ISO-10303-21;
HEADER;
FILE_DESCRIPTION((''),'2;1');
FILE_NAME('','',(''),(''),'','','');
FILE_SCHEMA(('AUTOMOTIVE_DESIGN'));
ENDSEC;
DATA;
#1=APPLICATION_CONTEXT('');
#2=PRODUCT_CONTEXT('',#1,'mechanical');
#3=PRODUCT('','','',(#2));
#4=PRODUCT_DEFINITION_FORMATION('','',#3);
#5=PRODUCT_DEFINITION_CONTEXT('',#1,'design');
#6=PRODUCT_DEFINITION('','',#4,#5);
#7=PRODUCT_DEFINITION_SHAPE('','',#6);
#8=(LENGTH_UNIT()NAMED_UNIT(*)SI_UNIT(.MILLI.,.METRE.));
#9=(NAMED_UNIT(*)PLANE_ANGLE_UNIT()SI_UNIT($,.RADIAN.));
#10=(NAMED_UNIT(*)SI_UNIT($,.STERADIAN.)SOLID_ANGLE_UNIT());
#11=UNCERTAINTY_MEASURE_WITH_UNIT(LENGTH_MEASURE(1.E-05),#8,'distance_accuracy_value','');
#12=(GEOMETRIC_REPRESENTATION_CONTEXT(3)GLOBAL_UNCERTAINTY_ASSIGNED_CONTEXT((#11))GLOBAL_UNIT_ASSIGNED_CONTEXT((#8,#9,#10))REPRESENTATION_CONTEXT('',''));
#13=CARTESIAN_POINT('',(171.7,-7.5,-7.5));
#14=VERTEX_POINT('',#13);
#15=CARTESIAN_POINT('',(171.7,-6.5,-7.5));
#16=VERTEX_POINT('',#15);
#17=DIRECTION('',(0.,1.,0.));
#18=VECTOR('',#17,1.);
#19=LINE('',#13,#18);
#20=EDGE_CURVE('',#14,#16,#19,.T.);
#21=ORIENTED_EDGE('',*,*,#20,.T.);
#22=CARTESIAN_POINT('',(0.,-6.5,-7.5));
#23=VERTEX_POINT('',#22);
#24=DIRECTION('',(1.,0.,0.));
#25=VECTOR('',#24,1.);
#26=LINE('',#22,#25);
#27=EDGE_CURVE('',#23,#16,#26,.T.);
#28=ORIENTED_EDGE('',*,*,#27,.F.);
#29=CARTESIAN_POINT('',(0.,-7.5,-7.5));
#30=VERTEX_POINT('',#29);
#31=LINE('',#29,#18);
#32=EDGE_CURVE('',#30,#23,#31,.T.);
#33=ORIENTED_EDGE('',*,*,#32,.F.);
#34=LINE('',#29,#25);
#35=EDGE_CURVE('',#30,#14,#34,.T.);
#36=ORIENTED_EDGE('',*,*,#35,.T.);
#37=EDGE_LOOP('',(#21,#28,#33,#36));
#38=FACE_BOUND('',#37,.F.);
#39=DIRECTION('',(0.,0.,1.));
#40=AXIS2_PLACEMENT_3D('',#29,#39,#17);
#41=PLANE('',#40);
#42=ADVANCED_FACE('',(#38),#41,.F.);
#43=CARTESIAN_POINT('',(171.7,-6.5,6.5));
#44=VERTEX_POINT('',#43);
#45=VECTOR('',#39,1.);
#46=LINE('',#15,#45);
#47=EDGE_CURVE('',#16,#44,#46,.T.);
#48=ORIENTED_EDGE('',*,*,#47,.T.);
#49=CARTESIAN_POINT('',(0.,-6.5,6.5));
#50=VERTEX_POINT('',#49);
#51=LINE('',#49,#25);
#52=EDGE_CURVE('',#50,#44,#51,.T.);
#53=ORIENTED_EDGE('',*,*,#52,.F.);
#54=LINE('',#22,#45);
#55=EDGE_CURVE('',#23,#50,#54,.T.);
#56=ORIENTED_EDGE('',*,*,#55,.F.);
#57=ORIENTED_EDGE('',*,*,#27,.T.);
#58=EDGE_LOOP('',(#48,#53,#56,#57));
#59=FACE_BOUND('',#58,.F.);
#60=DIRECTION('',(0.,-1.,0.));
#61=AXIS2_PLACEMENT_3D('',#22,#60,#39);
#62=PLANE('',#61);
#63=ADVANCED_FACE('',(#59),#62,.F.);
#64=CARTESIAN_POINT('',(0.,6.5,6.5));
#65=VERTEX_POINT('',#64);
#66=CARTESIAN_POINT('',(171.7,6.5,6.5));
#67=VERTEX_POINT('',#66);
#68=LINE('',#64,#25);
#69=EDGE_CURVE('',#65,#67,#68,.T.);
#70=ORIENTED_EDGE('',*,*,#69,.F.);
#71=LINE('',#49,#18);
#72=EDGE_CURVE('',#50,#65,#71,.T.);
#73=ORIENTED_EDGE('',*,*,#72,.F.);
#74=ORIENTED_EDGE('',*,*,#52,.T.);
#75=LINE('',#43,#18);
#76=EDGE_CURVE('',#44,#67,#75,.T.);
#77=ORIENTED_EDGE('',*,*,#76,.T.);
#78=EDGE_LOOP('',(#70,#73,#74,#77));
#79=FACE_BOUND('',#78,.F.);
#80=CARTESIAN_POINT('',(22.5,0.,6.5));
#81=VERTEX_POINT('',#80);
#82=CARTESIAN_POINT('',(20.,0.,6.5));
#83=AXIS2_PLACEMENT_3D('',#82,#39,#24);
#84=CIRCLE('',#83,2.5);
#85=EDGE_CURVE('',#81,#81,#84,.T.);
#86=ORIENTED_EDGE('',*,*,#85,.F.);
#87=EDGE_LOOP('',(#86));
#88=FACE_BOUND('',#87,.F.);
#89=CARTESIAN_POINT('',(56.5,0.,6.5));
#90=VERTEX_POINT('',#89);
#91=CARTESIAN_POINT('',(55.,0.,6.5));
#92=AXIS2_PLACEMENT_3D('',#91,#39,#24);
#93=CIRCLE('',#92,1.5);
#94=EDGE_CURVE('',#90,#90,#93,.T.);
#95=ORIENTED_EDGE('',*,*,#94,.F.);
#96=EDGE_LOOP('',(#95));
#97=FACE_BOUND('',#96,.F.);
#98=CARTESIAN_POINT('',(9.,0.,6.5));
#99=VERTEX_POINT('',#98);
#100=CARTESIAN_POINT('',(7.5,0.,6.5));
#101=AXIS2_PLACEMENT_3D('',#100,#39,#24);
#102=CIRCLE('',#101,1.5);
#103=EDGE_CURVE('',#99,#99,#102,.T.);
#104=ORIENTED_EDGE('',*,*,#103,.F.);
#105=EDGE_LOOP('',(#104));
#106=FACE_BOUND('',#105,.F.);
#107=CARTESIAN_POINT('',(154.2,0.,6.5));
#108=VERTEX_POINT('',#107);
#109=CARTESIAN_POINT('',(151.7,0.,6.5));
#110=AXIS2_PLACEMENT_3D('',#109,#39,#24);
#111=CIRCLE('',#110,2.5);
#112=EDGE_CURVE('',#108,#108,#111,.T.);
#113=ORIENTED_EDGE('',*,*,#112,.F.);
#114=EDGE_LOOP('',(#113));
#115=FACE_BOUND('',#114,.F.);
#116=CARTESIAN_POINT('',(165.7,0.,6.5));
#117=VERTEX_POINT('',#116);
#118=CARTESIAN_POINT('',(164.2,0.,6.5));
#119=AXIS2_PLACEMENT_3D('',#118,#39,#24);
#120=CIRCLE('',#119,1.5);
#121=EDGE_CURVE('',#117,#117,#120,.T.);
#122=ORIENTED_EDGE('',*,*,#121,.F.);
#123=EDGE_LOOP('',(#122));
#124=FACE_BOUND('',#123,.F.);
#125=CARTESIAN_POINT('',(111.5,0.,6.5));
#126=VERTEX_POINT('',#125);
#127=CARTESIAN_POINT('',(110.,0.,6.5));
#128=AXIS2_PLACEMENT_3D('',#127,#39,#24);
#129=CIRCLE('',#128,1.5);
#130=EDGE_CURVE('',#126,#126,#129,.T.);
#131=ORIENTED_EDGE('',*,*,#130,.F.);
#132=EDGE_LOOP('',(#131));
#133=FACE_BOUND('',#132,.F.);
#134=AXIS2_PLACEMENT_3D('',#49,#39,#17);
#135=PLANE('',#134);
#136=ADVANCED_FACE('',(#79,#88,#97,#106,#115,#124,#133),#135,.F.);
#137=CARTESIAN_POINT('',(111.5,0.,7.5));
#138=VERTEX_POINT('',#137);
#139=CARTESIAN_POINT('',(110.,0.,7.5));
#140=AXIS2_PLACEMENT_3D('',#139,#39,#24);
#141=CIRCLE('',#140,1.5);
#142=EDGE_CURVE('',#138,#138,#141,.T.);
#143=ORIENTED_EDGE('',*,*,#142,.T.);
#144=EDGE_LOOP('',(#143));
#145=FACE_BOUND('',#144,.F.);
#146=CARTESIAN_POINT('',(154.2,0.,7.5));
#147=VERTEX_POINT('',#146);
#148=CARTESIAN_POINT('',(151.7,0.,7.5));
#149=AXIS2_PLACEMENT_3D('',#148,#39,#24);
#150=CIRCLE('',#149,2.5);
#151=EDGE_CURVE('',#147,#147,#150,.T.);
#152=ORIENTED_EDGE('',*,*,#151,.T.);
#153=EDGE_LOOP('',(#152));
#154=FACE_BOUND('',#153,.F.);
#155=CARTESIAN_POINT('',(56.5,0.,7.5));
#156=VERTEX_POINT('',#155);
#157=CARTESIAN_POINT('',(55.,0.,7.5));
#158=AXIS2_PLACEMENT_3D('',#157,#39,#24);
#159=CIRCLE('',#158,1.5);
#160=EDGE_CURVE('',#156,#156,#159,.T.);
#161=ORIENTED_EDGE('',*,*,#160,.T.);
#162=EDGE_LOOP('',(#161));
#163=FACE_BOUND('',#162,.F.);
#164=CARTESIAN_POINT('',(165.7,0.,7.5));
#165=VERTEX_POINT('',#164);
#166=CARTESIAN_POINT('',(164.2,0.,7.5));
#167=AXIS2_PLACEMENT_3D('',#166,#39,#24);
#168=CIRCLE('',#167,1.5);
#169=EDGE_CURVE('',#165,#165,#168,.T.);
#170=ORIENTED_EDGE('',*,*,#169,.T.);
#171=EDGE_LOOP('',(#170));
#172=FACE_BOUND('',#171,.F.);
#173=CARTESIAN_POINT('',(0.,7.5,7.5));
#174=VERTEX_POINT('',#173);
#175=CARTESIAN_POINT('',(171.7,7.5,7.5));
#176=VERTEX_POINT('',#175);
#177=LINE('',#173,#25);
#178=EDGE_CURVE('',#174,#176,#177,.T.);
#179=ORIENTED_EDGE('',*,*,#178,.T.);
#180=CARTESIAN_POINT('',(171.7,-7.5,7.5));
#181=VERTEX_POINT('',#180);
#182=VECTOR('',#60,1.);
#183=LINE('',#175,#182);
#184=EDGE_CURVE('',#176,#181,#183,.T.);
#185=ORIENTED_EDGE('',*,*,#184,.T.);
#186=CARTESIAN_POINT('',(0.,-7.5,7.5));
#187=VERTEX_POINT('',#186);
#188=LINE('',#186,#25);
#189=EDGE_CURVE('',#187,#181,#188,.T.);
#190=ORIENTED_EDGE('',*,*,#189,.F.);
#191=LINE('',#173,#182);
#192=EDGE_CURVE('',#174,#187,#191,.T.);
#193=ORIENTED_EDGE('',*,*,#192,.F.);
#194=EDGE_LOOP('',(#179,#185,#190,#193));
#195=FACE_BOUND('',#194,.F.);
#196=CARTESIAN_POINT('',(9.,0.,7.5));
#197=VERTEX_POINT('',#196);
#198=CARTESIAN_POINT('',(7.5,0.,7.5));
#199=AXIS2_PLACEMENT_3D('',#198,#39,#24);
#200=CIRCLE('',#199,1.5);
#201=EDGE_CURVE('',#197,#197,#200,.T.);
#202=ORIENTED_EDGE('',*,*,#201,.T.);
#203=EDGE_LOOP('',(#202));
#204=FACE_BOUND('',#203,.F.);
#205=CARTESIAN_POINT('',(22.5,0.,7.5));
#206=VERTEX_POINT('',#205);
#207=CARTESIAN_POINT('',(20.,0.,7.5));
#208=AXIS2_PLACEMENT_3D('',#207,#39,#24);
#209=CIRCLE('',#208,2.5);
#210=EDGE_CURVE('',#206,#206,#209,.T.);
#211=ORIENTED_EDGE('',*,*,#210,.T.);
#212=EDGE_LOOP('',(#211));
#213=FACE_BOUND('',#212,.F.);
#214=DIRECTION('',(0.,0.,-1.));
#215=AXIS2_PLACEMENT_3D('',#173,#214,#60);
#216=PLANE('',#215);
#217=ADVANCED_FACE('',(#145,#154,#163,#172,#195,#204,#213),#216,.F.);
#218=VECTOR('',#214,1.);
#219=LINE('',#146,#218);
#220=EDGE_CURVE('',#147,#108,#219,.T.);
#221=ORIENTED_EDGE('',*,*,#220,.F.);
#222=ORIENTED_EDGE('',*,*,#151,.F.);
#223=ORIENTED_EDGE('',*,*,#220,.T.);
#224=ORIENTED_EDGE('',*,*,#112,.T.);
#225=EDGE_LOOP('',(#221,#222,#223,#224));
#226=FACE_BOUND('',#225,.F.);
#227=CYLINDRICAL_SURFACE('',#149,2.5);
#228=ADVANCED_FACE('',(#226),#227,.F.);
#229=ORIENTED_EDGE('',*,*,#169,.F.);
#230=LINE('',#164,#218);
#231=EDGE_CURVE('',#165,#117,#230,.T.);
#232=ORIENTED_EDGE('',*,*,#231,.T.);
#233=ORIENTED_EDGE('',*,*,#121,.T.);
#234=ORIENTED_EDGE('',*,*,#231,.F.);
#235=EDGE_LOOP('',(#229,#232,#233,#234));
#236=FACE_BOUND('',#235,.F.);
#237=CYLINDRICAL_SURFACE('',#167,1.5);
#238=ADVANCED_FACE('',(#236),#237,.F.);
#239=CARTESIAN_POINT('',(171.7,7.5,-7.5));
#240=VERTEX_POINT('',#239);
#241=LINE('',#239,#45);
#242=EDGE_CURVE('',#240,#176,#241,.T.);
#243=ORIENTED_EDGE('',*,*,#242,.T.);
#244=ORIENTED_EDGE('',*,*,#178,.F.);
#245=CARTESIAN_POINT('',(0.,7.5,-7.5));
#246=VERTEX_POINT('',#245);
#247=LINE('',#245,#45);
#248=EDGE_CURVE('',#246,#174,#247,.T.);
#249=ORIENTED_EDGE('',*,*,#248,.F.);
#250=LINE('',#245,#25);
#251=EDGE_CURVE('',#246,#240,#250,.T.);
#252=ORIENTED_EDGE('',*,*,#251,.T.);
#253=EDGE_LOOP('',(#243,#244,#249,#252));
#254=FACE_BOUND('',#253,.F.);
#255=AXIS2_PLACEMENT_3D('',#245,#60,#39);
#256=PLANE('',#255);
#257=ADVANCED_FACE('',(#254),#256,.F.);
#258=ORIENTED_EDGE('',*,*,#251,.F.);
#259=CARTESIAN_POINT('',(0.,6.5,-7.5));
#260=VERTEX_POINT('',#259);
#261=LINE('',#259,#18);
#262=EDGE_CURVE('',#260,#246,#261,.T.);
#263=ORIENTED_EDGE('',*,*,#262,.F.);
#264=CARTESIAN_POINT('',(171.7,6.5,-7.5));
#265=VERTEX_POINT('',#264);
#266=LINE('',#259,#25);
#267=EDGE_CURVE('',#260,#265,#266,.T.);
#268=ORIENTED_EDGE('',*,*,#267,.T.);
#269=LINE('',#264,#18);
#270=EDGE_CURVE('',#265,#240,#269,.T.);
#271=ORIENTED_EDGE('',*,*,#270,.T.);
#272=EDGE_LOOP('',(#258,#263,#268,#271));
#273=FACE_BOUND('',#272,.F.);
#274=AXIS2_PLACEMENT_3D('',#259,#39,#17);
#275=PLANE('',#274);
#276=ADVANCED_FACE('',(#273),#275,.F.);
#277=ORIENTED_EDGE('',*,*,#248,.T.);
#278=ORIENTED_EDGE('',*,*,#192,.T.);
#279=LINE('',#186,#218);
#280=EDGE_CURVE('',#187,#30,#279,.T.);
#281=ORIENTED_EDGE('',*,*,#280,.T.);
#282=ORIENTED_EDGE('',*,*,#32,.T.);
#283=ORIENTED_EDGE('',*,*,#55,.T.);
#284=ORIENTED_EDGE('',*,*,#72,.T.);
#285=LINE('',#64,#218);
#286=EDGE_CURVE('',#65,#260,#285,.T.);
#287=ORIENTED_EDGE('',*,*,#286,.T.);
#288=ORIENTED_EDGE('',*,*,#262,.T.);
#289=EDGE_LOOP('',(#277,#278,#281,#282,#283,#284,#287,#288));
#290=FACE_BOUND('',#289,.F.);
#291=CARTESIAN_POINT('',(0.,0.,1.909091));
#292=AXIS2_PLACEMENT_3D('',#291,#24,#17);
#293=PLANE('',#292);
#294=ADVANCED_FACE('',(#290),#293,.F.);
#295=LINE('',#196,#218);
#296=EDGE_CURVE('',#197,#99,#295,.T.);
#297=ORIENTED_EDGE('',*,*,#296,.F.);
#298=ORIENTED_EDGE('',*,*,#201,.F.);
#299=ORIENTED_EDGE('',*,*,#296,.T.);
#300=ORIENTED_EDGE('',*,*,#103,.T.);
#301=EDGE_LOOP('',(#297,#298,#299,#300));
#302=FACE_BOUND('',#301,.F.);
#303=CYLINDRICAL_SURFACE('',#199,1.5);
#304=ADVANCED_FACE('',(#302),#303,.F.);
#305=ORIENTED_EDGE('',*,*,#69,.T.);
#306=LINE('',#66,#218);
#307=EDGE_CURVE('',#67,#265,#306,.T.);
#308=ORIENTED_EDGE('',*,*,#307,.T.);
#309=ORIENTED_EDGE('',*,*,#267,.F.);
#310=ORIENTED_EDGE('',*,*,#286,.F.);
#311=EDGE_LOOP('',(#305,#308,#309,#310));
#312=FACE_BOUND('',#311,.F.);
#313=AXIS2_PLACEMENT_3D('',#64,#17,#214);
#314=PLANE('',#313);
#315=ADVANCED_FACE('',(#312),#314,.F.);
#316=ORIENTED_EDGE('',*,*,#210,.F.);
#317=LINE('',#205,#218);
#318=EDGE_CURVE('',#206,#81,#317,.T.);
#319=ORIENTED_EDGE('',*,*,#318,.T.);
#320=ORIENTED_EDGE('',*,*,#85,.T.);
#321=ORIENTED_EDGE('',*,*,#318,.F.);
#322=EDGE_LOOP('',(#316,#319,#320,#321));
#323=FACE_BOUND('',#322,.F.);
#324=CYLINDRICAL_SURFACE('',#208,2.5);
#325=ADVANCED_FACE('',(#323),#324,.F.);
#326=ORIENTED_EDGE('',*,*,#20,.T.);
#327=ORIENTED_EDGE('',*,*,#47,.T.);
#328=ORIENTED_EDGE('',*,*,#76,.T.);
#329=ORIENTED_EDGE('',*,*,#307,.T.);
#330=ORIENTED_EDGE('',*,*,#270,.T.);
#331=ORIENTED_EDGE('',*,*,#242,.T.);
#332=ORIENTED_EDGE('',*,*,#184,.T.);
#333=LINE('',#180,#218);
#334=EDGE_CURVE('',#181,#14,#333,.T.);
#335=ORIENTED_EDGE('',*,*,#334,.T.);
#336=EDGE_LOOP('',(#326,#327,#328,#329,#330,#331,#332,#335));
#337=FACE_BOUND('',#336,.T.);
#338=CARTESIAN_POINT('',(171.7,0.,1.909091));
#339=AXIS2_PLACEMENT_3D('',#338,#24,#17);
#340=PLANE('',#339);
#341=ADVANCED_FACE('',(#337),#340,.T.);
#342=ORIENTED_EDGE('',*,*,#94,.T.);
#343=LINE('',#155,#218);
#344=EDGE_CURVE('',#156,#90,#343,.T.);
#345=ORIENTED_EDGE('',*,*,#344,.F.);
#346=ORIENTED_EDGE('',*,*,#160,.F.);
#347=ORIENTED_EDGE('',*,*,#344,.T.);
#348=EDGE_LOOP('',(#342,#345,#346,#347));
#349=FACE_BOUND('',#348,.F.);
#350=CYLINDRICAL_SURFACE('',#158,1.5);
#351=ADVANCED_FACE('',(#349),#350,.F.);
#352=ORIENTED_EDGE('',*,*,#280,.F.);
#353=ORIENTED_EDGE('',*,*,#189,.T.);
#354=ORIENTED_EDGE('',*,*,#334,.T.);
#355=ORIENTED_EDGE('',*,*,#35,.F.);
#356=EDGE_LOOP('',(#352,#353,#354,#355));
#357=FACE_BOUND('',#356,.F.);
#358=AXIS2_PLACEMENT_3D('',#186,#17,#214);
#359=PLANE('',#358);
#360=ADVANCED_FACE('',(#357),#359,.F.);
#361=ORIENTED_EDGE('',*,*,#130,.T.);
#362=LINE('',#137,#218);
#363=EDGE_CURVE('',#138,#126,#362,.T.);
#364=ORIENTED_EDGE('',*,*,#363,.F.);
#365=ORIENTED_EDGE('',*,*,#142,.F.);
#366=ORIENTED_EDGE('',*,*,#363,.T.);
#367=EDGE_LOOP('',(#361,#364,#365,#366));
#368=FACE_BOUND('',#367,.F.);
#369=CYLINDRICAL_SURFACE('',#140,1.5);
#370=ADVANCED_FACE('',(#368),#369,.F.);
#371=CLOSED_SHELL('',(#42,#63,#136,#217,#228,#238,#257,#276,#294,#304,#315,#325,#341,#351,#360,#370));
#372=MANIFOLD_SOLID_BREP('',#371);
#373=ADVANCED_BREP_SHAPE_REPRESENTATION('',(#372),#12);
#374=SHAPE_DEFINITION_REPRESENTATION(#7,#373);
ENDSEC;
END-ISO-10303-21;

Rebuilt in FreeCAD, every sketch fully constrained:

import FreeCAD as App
import Part
import Sketcher

doc = App.newDocument("Part")
body = doc.addObject("PartDesign::Body", "Body")

# Sketch on YZ plane
sketch1 = body.newObject("Sketcher::SketchObject", "Sketch")
sketch1.AttachmentSupport = (doc.getObject("YZ_Plane"), [""])
sketch1.MapMode = "FlatFace"
sketch1.addGeometry(Part.LineSegment(App.Vector(7.5, -7.5, 0), App.Vector(7.5, 7.5, 0)), False)
sketch1.addGeometry(Part.LineSegment(App.Vector(7.5, 7.5, 0), App.Vector(-7.5, 7.5, 0)), False)
sketch1.addGeometry(Part.LineSegment(App.Vector(-7.5, 7.5, 0), App.Vector(-7.5, -7.5, 0)), False)
sketch1.addGeometry(Part.LineSegment(App.Vector(-7.5, -7.5, 0), App.Vector(-6.5, -7.5, 0)), False)
sketch1.addGeometry(Part.LineSegment(App.Vector(-6.5, -7.5, 0), App.Vector(-6.5, 6.5, 0)), False)
sketch1.addGeometry(Part.LineSegment(App.Vector(-6.5, 6.5, 0), App.Vector(6.5, 6.5, 0)), False)
sketch1.addGeometry(Part.LineSegment(App.Vector(6.5, 6.5, 0), App.Vector(6.5, -7.5, 0)), False)
sketch1.addGeometry(Part.LineSegment(App.Vector(6.5, -7.5, 0), App.Vector(7.5, -7.5, 0)), False)
sketch1.addConstraint(Sketcher.Constraint("Coincident", 0, 2, 1, 1))
sketch1.addConstraint(Sketcher.Constraint("Coincident", 1, 2, 2, 1))
sketch1.addConstraint(Sketcher.Constraint("Coincident", 2, 2, 3, 1))
sketch1.addConstraint(Sketcher.Constraint("Coincident", 3, 2, 4, 1))
sketch1.addConstraint(Sketcher.Constraint("Coincident", 4, 2, 5, 1))
sketch1.addConstraint(Sketcher.Constraint("Coincident", 5, 2, 6, 1))
sketch1.addConstraint(Sketcher.Constraint("Coincident", 6, 2, 7, 1))
sketch1.addConstraint(Sketcher.Constraint("Coincident", 7, 2, 0, 1))
sketch1.addConstraint(Sketcher.Constraint("Vertical", 0))
sketch1.addConstraint(Sketcher.Constraint("Horizontal", 1))
sketch1.addConstraint(Sketcher.Constraint("Vertical", 2))
sketch1.addConstraint(Sketcher.Constraint("Horizontal", 3))
sketch1.addConstraint(Sketcher.Constraint("Vertical", 4))
sketch1.addConstraint(Sketcher.Constraint("Horizontal", 5))
sketch1.addConstraint(Sketcher.Constraint("Vertical", 6))
sketch1.addConstraint(Sketcher.Constraint("Horizontal", 7))
sketch1.addConstraint(Sketcher.Constraint("Symmetric", 0, 2, 2, 2, -1, 1))
sketch1.addConstraint(Sketcher.Constraint("Symmetric", 3, 2, 6, 2, -2))
sketch1.addConstraint(Sketcher.Constraint("Equal", 1, 0))
sketch1.addConstraint(Sketcher.Constraint("DistanceX", 1, 2, 1, 1, 15.0))
sketch1.addConstraint(Sketcher.Constraint("DistanceX", 3, 1, 3, 2, 1.0))
sketch1.addConstraint(Sketcher.Constraint("DistanceY", 4, 1, 4, 2, 14.0))
pad1 = body.newObject("PartDesign::Pad", "Pad")
pad1.Profile = sketch1
pad1.Length = 171.7

# Sketch on XY plane
sketch2 = body.newObject("Sketcher::SketchObject", "Sketch001")
sketch2.AttachmentSupport = (doc.getObject("XY_Plane"), [""])
sketch2.MapMode = "FlatFace"
sketch2.AttachmentOffset = App.Placement(App.Vector(0, 0, 7.5), App.Rotation())
sketch2.addGeometry(Part.Circle(App.Vector(7.5, 0, 0), App.Vector(0, 0, 1), 1.5), False)
sketch2.addGeometry(Part.Circle(App.Vector(55, 0, 0), App.Vector(0, 0, 1), 1.5), False)
sketch2.addGeometry(Part.Circle(App.Vector(110, 0, 0), App.Vector(0, 0, 1), 1.5), False)
sketch2.addGeometry(Part.Circle(App.Vector(164.2, 0, 0), App.Vector(0, 0, 1), 1.5), False)
sketch2.addGeometry(Part.Circle(App.Vector(20, 0, 0), App.Vector(0, 0, 1), 2.5), False)
sketch2.addGeometry(Part.Circle(App.Vector(151.7, 0, 0), App.Vector(0, 0, 1), 2.5), False)
sketch2.addConstraint(Sketcher.Constraint("Equal", 0, 1))
sketch2.addConstraint(Sketcher.Constraint("Equal", 1, 2))
sketch2.addConstraint(Sketcher.Constraint("Equal", 2, 3))
sketch2.addConstraint(Sketcher.Constraint("Equal", 4, 5))
sketch2.addConstraint(Sketcher.Constraint("PointOnObject", 0, 3, -1))
sketch2.addConstraint(Sketcher.Constraint("PointOnObject", 1, 3, -1))
sketch2.addConstraint(Sketcher.Constraint("PointOnObject", 2, 3, -1))
sketch2.addConstraint(Sketcher.Constraint("PointOnObject", 3, 3, -1))
sketch2.addConstraint(Sketcher.Constraint("PointOnObject", 4, 3, -1))
sketch2.addConstraint(Sketcher.Constraint("PointOnObject", 5, 3, -1))
sketch2.addConstraint(Sketcher.Constraint("Diameter", 0, 3.0))
sketch2.addConstraint(Sketcher.Constraint("Diameter", 4, 5.0))
sketch2.addConstraint(Sketcher.Constraint("DistanceX", -1, 1, 1, 3, 55.0))
sketch2.addConstraint(Sketcher.Constraint("DistanceX", -1, 1, 2, 3, 110.0))
sketch2.addConstraint(Sketcher.Constraint("DistanceX", -1, 1, 4, 3, 20.0))
sketch2.addConstraint(Sketcher.Constraint("DistanceX", -1, 1, 0, 3, 7.5))
sketch2.addConstraint(Sketcher.Constraint("DistanceX", -1, 1, 3, 3, 164.2))
sketch2.addConstraint(Sketcher.Constraint("DistanceX", -1, 1, 5, 3, 151.7))
pocket1 = body.newObject("PartDesign::Pocket", "Pocket")
pocket1.Profile = sketch2
pocket1.Type = "ThroughAll"

doc.recompute()
